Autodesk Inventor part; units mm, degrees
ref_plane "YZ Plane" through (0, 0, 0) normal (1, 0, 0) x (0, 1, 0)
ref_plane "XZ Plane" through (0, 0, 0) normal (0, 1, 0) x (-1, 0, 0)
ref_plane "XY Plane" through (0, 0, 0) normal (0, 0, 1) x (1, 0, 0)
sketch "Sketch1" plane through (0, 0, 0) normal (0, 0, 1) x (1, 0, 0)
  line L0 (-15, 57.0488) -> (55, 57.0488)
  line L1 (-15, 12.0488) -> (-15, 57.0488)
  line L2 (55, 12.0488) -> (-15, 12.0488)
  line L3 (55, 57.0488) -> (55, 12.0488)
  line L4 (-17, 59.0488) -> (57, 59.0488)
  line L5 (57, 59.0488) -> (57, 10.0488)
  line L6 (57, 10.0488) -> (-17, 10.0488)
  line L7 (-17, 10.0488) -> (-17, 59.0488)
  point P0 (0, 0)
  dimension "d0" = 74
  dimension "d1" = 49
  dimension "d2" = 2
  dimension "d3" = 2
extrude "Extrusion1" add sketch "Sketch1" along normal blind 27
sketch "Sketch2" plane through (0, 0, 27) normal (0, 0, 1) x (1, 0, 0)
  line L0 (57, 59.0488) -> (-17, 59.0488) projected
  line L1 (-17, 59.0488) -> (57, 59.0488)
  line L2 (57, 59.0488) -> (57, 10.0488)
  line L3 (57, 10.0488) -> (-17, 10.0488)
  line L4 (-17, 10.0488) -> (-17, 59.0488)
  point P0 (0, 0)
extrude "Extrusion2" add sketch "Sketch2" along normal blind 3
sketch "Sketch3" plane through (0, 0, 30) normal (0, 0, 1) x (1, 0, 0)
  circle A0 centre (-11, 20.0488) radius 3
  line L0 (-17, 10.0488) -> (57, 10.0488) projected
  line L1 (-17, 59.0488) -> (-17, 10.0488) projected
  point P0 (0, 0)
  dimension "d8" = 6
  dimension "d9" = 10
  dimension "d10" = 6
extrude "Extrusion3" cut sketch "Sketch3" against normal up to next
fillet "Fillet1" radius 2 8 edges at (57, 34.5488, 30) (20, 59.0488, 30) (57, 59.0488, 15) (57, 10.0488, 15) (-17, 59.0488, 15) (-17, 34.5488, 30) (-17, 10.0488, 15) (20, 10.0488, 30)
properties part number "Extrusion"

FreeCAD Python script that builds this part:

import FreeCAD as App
import Part
import Sketcher


def edges_at(feature, points):
    """Names of the edges that pass closest to the given points."""
    edges = feature.Shape.Edges
    near = lambda p: min(range(len(edges)), key=lambda i: edges[i].distToShape(Part.Vertex(*p))[0])
    return sorted({f"Edge{near(p) + 1}" for p in points})


def add_polygon(sketch, points):
    """Adds a closed chain of lines whose ends are joined by coincident constraints."""
    first, n = sketch.GeometryCount, len(points)
    for a, b in zip(points, points[1:] + points[:1]):
        sketch.addGeometry(Part.LineSegment(App.Vector(*a, 0), App.Vector(*b, 0)), False)
    for i in range(n):
        sketch.addConstraint(Sketcher.Constraint("Coincident", first + i, 2, first + (i + 1) % n, 1))

doc = App.newDocument("Part")
body = doc.addObject("PartDesign::Body", "Body")

# Sketch on XY plane
sketch1 = doc.addObject("Sketcher::SketchObject", "Sketch")
body.addObject(sketch1)
sketch1.AttachmentSupport = (doc.XY_Plane, [""])
sketch1.MapMode = "FlatFace"
add_polygon(sketch1, [(57, 59), (-17, 59), (-17, 10), (57, 10)])  # lines 0-3
add_polygon(sketch1, [(-15, 12), (-15, 57), (55, 57), (55, 12)])  # lines 4-7
sketch1.addConstraint([
    Sketcher.Constraint("Horizontal", 0),
    Sketcher.Constraint("Vertical", 1),
    Sketcher.Constraint("Horizontal", 2),
    Sketcher.Constraint("Vertical", 3),
    Sketcher.Constraint("Vertical", 4),
    Sketcher.Constraint("Horizontal", 5),
    Sketcher.Constraint("Vertical", 6),
    Sketcher.Constraint("Horizontal", 7),
    Sketcher.Constraint("DistanceX", 0, 2, 0, 1, 74.0),
    Sketcher.Constraint("DistanceY", 1, 2, 1, 1, 49.0),
    Sketcher.Constraint("DistanceX", 0, 2, 4, 2, 2.0),
    Sketcher.Constraint("DistanceY", 4, 2, 0, 2, 2.0),
    Sketcher.Constraint("DistanceX", 5, 2, 3, 2, 2.0),
    Sketcher.Constraint("DistanceY", 2, 2, 6, 2, 2.0),
    Sketcher.Constraint("DistanceX", 0, 2, -1, 1, 17.0),
    Sketcher.Constraint("DistanceY", -1, 1, 0, 2, 59.0488),
])
pad1 = doc.addObject("PartDesign::Pad", "Pad")
body.addObject(pad1)
pad1.Profile = sketch1
pad1.Length = 27

# Sketch on XY plane
sketch2 = doc.addObject("Sketcher::SketchObject", "Sketch001")
body.addObject(sketch2)
sketch2.AttachmentSupport = (doc.XY_Plane, [""])
sketch2.MapMode = "FlatFace"
sketch2.AttachmentOffset = App.Placement(App.Vector(0, 0, 27), App.Rotation())
add_polygon(sketch2, [(57, 10), (57, 59), (-17, 59), (-17, 10)])  # lines 0-3
sketch2.addConstraint([
    Sketcher.Constraint("Vertical", 0),
    Sketcher.Constraint("Horizontal", 1),
    Sketcher.Constraint("Vertical", 2),
    Sketcher.Constraint("Horizontal", 3),
    Sketcher.Constraint("DistanceX", 1, 2, 1, 1, 74.0),
    Sketcher.Constraint("DistanceY", 0, 1, 0, 2, 49.0),
    Sketcher.Constraint("DistanceX", -1, 1, 0, 2, 57.0),
    Sketcher.Constraint("DistanceY", -1, 1, 0, 2, 59.0488),
])
pad2 = doc.addObject("PartDesign::Pad", "Pad001")
body.addObject(pad2)
pad2.Profile = sketch2
pad2.Length = 3

# Sketch on XY plane
sketch3 = doc.addObject("Sketcher::SketchObject", "Sketch002")
body.addObject(sketch3)
sketch3.AttachmentSupport = (doc.XY_Plane, [""])
sketch3.MapMode = "FlatFace"
sketch3.AttachmentOffset = App.Placement(App.Vector(0, 0, 30), App.Rotation())
sketch3.addGeometry(Part.Circle(App.Vector(-11, 20, 0), App.Vector(0, 0, 1), 3), False)
sketch3.addConstraint([
    Sketcher.Constraint("Diameter", 0, 6.0),
    Sketcher.Constraint("DistanceX", 0, 3, -1, 1, 11.0),
    Sketcher.Constraint("DistanceY", -1, 1, 0, 3, 20.0488),
])
pocket1 = doc.addObject("PartDesign::Pocket", "Pocket")
body.addObject(pocket1)
pocket1.Profile = sketch3
pocket1.Type = "UpToFirst"
doc.recompute()

fillet = doc.addObject("PartDesign::Fillet", "Fillet")
body.addObject(fillet)
fillet.Base = (pocket1, edges_at(pocket1, [
    (57, 34.549, 30),
    (20, 59.049, 30),
    (57, 59.049, 15),
    (57, 10.049, 15),
    (-17, 59.049, 15),
    (-17, 34.549, 30),
    (-17, 10.049, 15),
    (20, 10.049, 30),
]))
fillet.Radius = 2

doc.recompute()
